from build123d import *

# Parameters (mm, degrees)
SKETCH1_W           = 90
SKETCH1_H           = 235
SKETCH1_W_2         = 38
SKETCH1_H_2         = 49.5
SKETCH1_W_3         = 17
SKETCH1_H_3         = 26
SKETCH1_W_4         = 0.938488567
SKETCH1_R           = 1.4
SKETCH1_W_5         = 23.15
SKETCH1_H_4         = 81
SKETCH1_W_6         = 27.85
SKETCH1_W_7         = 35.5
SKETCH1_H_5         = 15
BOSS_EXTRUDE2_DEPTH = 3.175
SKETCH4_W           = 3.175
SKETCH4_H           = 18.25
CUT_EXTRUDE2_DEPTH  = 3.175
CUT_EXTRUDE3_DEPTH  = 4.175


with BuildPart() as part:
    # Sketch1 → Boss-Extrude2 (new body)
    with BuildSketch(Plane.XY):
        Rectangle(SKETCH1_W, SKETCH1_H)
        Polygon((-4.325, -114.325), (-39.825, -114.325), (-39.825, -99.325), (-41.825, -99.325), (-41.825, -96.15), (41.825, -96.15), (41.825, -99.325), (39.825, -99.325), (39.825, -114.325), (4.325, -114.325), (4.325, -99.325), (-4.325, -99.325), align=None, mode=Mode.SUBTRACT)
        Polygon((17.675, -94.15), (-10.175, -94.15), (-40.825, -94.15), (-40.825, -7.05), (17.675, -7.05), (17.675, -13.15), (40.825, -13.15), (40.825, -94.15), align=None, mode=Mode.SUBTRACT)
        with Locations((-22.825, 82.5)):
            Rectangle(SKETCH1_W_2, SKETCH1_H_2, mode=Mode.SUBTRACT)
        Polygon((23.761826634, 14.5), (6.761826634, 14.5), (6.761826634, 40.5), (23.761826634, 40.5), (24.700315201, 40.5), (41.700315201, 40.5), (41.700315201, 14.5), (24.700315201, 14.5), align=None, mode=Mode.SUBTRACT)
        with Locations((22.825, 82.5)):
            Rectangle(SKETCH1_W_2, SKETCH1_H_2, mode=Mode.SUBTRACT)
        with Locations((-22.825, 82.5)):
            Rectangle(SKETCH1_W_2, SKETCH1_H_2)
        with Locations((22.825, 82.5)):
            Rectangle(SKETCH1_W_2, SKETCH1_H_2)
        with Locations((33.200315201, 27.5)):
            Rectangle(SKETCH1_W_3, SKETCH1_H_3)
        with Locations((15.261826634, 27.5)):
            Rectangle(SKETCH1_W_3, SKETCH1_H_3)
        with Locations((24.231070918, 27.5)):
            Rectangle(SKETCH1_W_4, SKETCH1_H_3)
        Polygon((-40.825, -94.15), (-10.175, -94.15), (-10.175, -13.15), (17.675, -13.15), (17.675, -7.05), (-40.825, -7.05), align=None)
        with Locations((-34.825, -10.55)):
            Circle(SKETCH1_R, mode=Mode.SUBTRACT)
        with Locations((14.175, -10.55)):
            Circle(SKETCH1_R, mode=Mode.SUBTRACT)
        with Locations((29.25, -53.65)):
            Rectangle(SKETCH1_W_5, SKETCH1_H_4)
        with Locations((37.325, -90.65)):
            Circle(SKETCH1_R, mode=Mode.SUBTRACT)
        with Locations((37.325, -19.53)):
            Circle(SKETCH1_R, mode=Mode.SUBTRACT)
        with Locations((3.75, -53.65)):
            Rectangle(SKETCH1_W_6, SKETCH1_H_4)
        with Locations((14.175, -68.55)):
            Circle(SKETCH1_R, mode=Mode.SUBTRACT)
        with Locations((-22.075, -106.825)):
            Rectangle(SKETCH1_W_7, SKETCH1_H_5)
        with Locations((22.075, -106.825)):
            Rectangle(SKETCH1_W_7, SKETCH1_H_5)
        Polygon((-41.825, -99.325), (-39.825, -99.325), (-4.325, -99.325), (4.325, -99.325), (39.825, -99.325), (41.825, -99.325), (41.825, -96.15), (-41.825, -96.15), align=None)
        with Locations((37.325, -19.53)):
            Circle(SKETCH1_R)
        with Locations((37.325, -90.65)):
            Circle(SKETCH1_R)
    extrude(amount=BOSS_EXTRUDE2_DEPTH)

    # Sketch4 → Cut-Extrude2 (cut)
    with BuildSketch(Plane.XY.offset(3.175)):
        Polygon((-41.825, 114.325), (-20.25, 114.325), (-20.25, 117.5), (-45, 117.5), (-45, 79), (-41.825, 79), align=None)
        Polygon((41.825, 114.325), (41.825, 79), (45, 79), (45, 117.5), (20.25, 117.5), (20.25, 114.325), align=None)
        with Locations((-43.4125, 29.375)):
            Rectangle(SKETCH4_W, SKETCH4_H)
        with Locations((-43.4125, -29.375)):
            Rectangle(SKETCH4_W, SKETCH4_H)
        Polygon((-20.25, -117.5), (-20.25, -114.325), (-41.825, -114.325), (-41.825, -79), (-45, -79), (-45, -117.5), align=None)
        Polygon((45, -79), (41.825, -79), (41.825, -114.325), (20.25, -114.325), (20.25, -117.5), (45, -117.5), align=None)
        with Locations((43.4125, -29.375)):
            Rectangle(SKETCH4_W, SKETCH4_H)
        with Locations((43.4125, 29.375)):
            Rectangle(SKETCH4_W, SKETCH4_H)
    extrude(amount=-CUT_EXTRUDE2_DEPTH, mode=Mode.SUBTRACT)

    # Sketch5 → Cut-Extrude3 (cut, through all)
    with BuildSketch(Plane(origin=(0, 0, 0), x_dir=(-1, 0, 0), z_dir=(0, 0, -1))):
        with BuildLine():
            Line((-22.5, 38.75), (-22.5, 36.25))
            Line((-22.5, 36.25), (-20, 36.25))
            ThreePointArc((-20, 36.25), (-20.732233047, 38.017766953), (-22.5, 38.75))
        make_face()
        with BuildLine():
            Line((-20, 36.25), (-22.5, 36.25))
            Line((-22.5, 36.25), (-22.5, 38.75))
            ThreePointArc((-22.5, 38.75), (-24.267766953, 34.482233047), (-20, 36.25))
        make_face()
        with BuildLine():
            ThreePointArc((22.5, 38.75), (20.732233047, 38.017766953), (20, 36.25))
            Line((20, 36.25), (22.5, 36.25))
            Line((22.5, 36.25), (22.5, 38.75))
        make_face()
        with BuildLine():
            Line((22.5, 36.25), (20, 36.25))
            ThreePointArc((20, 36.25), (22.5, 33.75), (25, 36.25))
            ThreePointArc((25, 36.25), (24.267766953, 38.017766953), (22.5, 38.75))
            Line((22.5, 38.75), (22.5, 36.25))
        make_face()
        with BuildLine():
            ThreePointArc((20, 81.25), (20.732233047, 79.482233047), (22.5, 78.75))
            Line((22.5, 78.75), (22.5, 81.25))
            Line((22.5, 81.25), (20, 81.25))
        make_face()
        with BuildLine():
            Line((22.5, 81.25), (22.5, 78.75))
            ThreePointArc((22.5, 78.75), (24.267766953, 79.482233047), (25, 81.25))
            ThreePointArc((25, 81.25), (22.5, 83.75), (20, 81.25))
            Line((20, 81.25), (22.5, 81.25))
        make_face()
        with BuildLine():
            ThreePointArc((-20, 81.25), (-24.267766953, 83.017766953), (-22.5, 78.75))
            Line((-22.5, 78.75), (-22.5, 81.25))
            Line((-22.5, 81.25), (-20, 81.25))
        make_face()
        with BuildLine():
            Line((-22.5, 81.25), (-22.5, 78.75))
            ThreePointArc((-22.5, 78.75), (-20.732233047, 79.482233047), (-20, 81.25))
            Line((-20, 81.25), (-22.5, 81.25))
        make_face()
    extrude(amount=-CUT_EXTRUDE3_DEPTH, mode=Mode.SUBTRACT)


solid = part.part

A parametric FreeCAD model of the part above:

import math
import FreeCAD as App
import Part
import Sketcher

V = App.Vector
Q = App.Units.Quantity

doc = App.newDocument("Part")
body = doc.addObject("PartDesign::Body", "Body")

# Sketch on XY plane
sketch1 = body.newObject("Sketcher::SketchObject", "Sketch")
sketch1.AttachmentSupport = (doc.getObject("XY_Plane"), [""])
sketch1.MapMode = "FlatFace"
sketch1.addGeometry([
    Part.LineSegment(V(-45, 117.5, 0), V(-45, -117.5, 0)),  # 0
    Part.LineSegment(V(-45, -117.5, 0), V(45, -117.5, 0)),  # 1
    Part.LineSegment(V(45, -117.5, 0), V(45, 117.5, 0)),  # 2
    Part.LineSegment(V(45, 117.5, 0), V(-45, 117.5, 0)),  # 3
    Part.Circle(V(14.2, -68.5, 0), V(0, 0, 1), 1.4),  # 4
    Part.Circle(V(-34.8, -10.6, 0), V(0, 0, 1), 1.4),  # 5
    Part.Circle(V(14.2, -10.6, 0), V(0, 0, 1), 1.4),  # 6
], False)
sketch1.addConstraint([
    Sketcher.Constraint("Coincident", 0, 2, 1, 1),
    Sketcher.Constraint("Coincident", 1, 2, 2, 1),
    Sketcher.Constraint("Coincident", 2, 2, 3, 1),
    Sketcher.Constraint("Coincident", 3, 2, 0, 1),
    Sketcher.Constraint("Vertical", 0),
    Sketcher.Constraint("Horizontal", 1),
    Sketcher.Constraint("Vertical", 2),
    Sketcher.Constraint("Horizontal", 3),
    Sketcher.Constraint("Equal", 4, 5),
    Sketcher.Constraint("Equal", 5, 6),
    Sketcher.Constraint("Symmetric", 0, 2, 2, 2, -1, 1),
    Sketcher.Constraint("Horizontal", 5, 3, 6, 3),
    Sketcher.Constraint("Vertical", 4, 3, 6, 3),
    Sketcher.Constraint("Diameter", 4, Q("2.8 mm")),
    Sketcher.Constraint("DistanceX", 1, 1, 1, 2, Q("90 mm")),
    Sketcher.Constraint("DistanceY", 0, 2, 0, 1, Q("235 mm")),
    Sketcher.Constraint("DistanceX", 5, 3, 4, 3, Q("49 mm")),
    Sketcher.Constraint("DistanceY", 4, 3, 5, 3, Q("58 mm")),
    Sketcher.Constraint("DistanceY", 4, 3, -1, 1, Q("68.55 mm")),
    Sketcher.Constraint("DistanceX", -1, 1, 4, 3, Q("14.175 mm")),
])
pad1 = body.newObject("PartDesign::Pad", "Pad")
pad1.Profile = sketch1
pad1.Length = 3.175

# Sketch on XY plane
sketch2 = body.newObject("Sketcher::SketchObject", "Sketch001")
sketch2.AttachmentSupport = (doc.getObject("XY_Plane"), [""])
sketch2.MapMode = "FlatFace"
sketch2.AttachmentOffset = App.Placement(V(0, 0, 3.175), App.Rotation())
sketch2.addGeometry([
    Part.LineSegment(V(-41.8, 114.3, 0), V(-20.2, 114.3, 0)),  # 0
    Part.LineSegment(V(-20.2, 114.3, 0), V(-20.2, 117.5, 0)),  # 1
    Part.LineSegment(V(-20.2, 117.5, 0), V(-45, 117.5, 0)),  # 2
    Part.LineSegment(V(-45, 117.5, 0), V(-45, 79, 0)),  # 3
    Part.LineSegment(V(-45, 79, 0), V(-41.8, 79, 0)),  # 4
    Part.LineSegment(V(-41.8, 79, 0), V(-41.8, 114.3, 0)),  # 5
    Part.LineSegment(V(41.8, 114.3, 0), V(41.8, 79, 0)),  # 6
    Part.LineSegment(V(41.8, 79, 0), V(45, 79, 0)),  # 7
    Part.LineSegment(V(45, 79, 0), V(45, 117.5, 0)),  # 8
    Part.LineSegment(V(45, 117.5, 0), V(20.2, 117.5, 0)),  # 9
    Part.LineSegment(V(20.2, 117.5, 0), V(20.2, 114.3, 0)),  # 10
    Part.LineSegment(V(20.2, 114.3, 0), V(41.8, 114.3, 0)),  # 11
    Part.LineSegment(V(-45, 38.5, 0), V(-45, 20.2, 0)),  # 12
    Part.LineSegment(V(-45, 20.2, 0), V(-41.8, 20.2, 0)),  # 13
    Part.LineSegment(V(-41.8, 20.2, 0), V(-41.8, 38.5, 0)),  # 14
    Part.LineSegment(V(-41.8, 38.5, 0), V(-45, 38.5, 0)),  # 15
    Part.LineSegment(V(-45, -20.2, 0), V(-45, -38.5, 0)),  # 16
    Part.LineSegment(V(-45, -38.5, 0), V(-41.8, -38.5, 0)),  # 17
    Part.LineSegment(V(-41.8, -38.5, 0), V(-41.8, -20.2, 0)),  # 18
    Part.LineSegment(V(-41.8, -20.2, 0), V(-45, -20.2, 0)),  # 19
    Part.LineSegment(V(-20.2, -117.5, 0), V(-20.2, -114.3, 0)),  # 20
    Part.LineSegment(V(-20.2, -114.3, 0), V(-41.8, -114.3, 0)),  # 21
    Part.LineSegment(V(-41.8, -114.3, 0), V(-41.8, -79, 0)),  # 22
    Part.LineSegment(V(-41.8, -79, 0), V(-45, -79, 0)),  # 23
    Part.LineSegment(V(-45, -79, 0), V(-45, -117.5, 0)),  # 24
    Part.LineSegment(V(-45, -117.5, 0), V(-20.2, -117.5, 0)),  # 25
    Part.LineSegment(V(45, -79, 0), V(41.8, -79, 0)),  # 26
    Part.LineSegment(V(41.8, -79, 0), V(41.8, -114.3, 0)),  # 27
    Part.LineSegment(V(41.8, -114.3, 0), V(20.2, -114.3, 0)),  # 28
    Part.LineSegment(V(20.2, -114.3, 0), V(20.2, -117.5, 0)),  # 29
    Part.LineSegment(V(20.2, -117.5, 0), V(45, -117.5, 0)),  # 30
    Part.LineSegment(V(45, -117.5, 0), V(45, -79, 0)),  # 31
    Part.LineSegment(V(41.8, -20.2, 0), V(41.8, -38.5, 0)),  # 32
    Part.LineSegment(V(41.8, -38.5, 0), V(45, -38.5, 0)),  # 33
    Part.LineSegment(V(45, -38.5, 0), V(45, -20.2, 0)),  # 34
    Part.LineSegment(V(45, -20.2, 0), V(41.8, -20.2, 0)),  # 35
    Part.LineSegment(V(41.8, 38.5, 0), V(41.8, 20.2, 0)),  # 36
    Part.LineSegment(V(41.8, 20.2, 0), V(45, 20.2, 0)),  # 37
    Part.LineSegment(V(45, 20.2, 0), V(45, 38.5, 0)),  # 38
    Part.LineSegment(V(45, 38.5, 0), V(41.8, 38.5, 0)),  # 39
], False)
sketch2.addConstraint([
    Sketcher.Constraint("Coincident", 0, 2, 1, 1),
    Sketcher.Constraint("Coincident", 1, 2, 2, 1),
    Sketcher.Constraint("Coincident", 2, 2, 3, 1),
    Sketcher.Constraint("Coincident", 3, 2, 4, 1),
    Sketcher.Constraint("Coincident", 4, 2, 5, 1),
    Sketcher.Constraint("Coincident", 5, 2, 0, 1),
    Sketcher.Constraint("Coincident", 6, 2, 7, 1),
    Sketcher.Constraint("Coincident", 7, 2, 8, 1),
    Sketcher.Constraint("Coincident", 8, 2, 9, 1),
    Sketcher.Constraint("Coincident", 9, 2, 10, 1),
    Sketcher.Constraint("Coincident", 10, 2, 11, 1),
    Sketcher.Constraint("Coincident", 11, 2, 6, 1),
    Sketcher.Constraint("Coincident", 12, 2, 13, 1),
    Sketcher.Constraint("Coincident", 13, 2, 14, 1),
    Sketcher.Constraint("Coincident", 14, 2, 15, 1),
    Sketcher.Constraint("Coincident", 15, 2, 12, 1),
    Sketcher.Constraint("Coincident", 16, 2, 17, 1),
    Sketcher.Constraint("Coincident", 17, 2, 18, 1),
    Sketcher.Constraint("Coincident", 18, 2, 19, 1),
    Sketcher.Constraint("Coincident", 19, 2, 16, 1),
    Sketcher.Constraint("Coincident", 20, 2, 21, 1),
    Sketcher.Constraint("Coincident", 21, 2, 22, 1),
    Sketcher.Constraint("Coincident", 22, 2, 23, 1),
    Sketcher.Constraint("Coincident", 23, 2, 24, 1),
    Sketcher.Constraint("Coincident", 24, 2, 25, 1),
    Sketcher.Constraint("Coincident", 25, 2, 20, 1),
    Sketcher.Constraint("Coincident", 26, 2, 27, 1),
    Sketcher.Constraint("Coincident", 27, 2, 28, 1),
    Sketcher.Constraint("Coincident", 28, 2, 29, 1),
    Sketcher.Constraint("Coincident", 29, 2, 30, 1),
    Sketcher.Constraint("Coincident", 30, 2, 31, 1),
    Sketcher.Constraint("Coincident", 31, 2, 26, 1),
    Sketcher.Constraint("Coincident", 32, 2, 33, 1),
    Sketcher.Constraint("Coincident", 33, 2, 34, 1),
    Sketcher.Constraint("Coincident", 34, 2, 35, 1),
    Sketcher.Constraint("Coincident", 35, 2, 32, 1),
    Sketcher.Constraint("Coincident", 36, 2, 37, 1),
    Sketcher.Constraint("Coincident", 37, 2, 38, 1),
    Sketcher.Constraint("Coincident", 38, 2, 39, 1),
    Sketcher.Constraint("Coincident", 39, 2, 36, 1),
    Sketcher.Constraint("Horizontal", 0),
    Sketcher.Constraint("Vertical", 1),
    Sketcher.Constraint("Horizontal", 2),
    Sketcher.Constraint("Vertical", 3),
    Sketcher.Constraint("Horizontal", 4),
    Sketcher.Constraint("Vertical", 5),
    Sketcher.Constraint("Vertical", 6),
    Sketcher.Constraint("Horizontal", 7),
    Sketcher.Constraint("Vertical", 8),
    Sketcher.Constraint("Horizontal", 9),
    Sketcher.Constraint("Vertical", 10),
    Sketcher.Constraint("Horizontal", 11),
    Sketcher.Constraint("Vertical", 12),
    Sketcher.Constraint("Horizontal", 13),
    Sketcher.Constraint("Vertical", 14),
    Sketcher.Constraint("Horizontal", 15),
    Sketcher.Constraint("Vertical", 16),
    Sketcher.Constraint("Horizontal", 17),
    Sketcher.Constraint("Vertical", 18),
    Sketcher.Constraint("Horizontal", 19),
    Sketcher.Constraint("Vertical", 20),
    Sketcher.Constraint("Horizontal", 21),
    Sketcher.Constraint("Vertical", 22),
    Sketcher.Constraint("Horizontal", 23),
    Sketcher.Constraint("Vertical", 24),
    Sketcher.Constraint("Horizontal", 25),
    Sketcher.Constraint("Horizontal", 26),
    Sketcher.Constraint("Vertical", 27),
    Sketcher.Constraint("Horizontal", 28),
    Sketcher.Constraint("Vertical", 29),
    Sketcher.Constraint("Horizontal", 30),
    Sketcher.Constraint("Vertical", 31),
    Sketcher.Constraint("Vertical", 32),
    Sketcher.Constraint("Horizontal", 33),
    Sketcher.Constraint("Vertical", 34),
    Sketcher.Constraint("Horizontal", 35),
    Sketcher.Constraint("Vertical", 36),
    Sketcher.Constraint("Horizontal", 37),
    Sketcher.Constraint("Vertical", 38),
    Sketcher.Constraint("Horizontal", 39),
    Sketcher.Constraint("Symmetric", 10, 2, 20, 2, -1, 1),
    Sketcher.Constraint("Symmetric", 6, 2, 22, 2, -1, 1),
    Sketcher.Constraint("Symmetric", 8, 2, 24, 2, -1, 1),
    Sketcher.Constraint("Symmetric", 4, 2, 26, 2, -1, 1),
    Sketcher.Constraint("Symmetric", 0, 2, 28, 2, -1, 1),
    Sketcher.Constraint("Symmetric", 2, 2, 30, 2, -1, 1),
    Sketcher.Constraint("Symmetric", 14, 2, 32, 2, -1, 1),
    Sketcher.Constraint("Symmetric", 12, 2, 34, 2, -1, 1),
    Sketcher.Constraint("Symmetric", 18, 2, 36, 2, -1, 1),
    Sketcher.Constraint("Symmetric", 16, 2, 38, 2, -1, 1),
    Sketcher.Constraint("Symmetric", 4, 2, 6, 2, -2),
    Sketcher.Constraint("Symmetric", 2, 2, 8, 2, -2),
    Sketcher.Constraint("Symmetric", 0, 2, 10, 2, -2),
    Sketcher.Constraint("Symmetric", 17, 2, 32, 2, -2),
    Sketcher.Constraint("Symmetric", 19, 2, 34, 2, -2),
    Sketcher.Constraint("Vertical", 3, 2, 12, 2),
    Sketcher.Constraint("Vertical", 5, 2, 13, 2),
    Sketcher.Constraint("Equal", 39, 1),
    Sketcher.Constraint("DistanceY", 3, 2, 3, 1, Q("38.5 mm")),
    Sketcher.Constraint("DistanceX", 2, 2, -1, 1, Q("45 mm")),
    Sketcher.Constraint("DistanceY", -1, 1, 3, 2, Q("79 mm")),
    Sketcher.Constraint("DistanceY", 16, 2, 15, 2, Q("77 mm")),
    Sketcher.Constraint("DistanceX", 2, 2, 2, 1, Q("24.75 mm")),
    Sketcher.Constraint("DistanceY", 12, 2, 12, 1, Q("18.25 mm")),
    Sketcher.Constraint("DistanceX", 0, 1, 0, 2, Q("21.575 mm")),
])
pocket1 = body.newObject("PartDesign::Pocket", "Pocket")
pocket1.Profile = sketch2
pocket1.Length = 3.175

# Sketch on XY plane
sketch3 = body.newObject("Sketcher::SketchObject", "Sketch002")
sketch3.AttachmentSupport = (doc.getObject("XY_Plane"), [""])
sketch3.MapMode = "FlatFace"
sketch3.addGeometry([
    Part.ArcOfCircle(Part.Circle(V(22.5, 36.2, 0), V(0, 0, 1), 2.5), math.radians(90), math.radians(180)),  # 0
    Part.ArcOfCircle(Part.Circle(V(22.5, 36.2, 0), V(0, 0, 1), 2.5), math.radians(180), math.radians(450)),  # 1
    Part.ArcOfCircle(Part.Circle(V(-22.5, 36.2, 0), V(0, 0, 1), 2.5), math.radians(0), math.radians(90)),  # 2
    Part.ArcOfCircle(Part.Circle(V(-22.5, 36.2, 0), V(0, 0, 1), 2.5), math.radians(180), math.radians(360)),  # 3
    Part.ArcOfCircle(Part.Circle(V(-22.5, 36.2, 0), V(0, 0, 1), 2.5), math.radians(90), math.radians(180)),  # 4
    Part.ArcOfCircle(Part.Circle(V(-22.5, 81.2, 0), V(0, 0, 1), 2.5), math.radians(-90), math.radians(0)),  # 5
    Part.ArcOfCircle(Part.Circle(V(-22.5, 81.2, 0), V(0, 0, 1), 2.5), math.radians(180), math.radians(270)),  # 6
    Part.ArcOfCircle(Part.Circle(V(-22.5, 81.2, 0), V(0, 0, 1), 2.5), math.radians(0), math.radians(180)),  # 7
    Part.ArcOfCircle(Part.Circle(V(22.5, 81.2, 0), V(0, 0, 1), 2.5), math.radians(-90), math.radians(180)),  # 8
    Part.ArcOfCircle(Part.Circle(V(22.5, 81.2, 0), V(0, 0, 1), 2.5), math.radians(180), math.radians(270)),  # 9
], False)
sketch3.addConstraint([
    Sketcher.Constraint("Tangent", 0, 1, 1, 2),
    Sketcher.Constraint("Coincident", 1, 1, 0, 2),
    Sketcher.Constraint("Tangent", 2, 1, 3, 2),
    Sketcher.Constraint("Tangent", 3, 1, 4, 2),
    Sketcher.Constraint("Tangent", 4, 1, 2, 2),
    Sketcher.Constraint("Tangent", 5, 1, 6, 2),
    Sketcher.Constraint("Tangent", 6, 1, 7, 2),
    Sketcher.Constraint("Tangent", 7, 1, 5, 2),
    Sketcher.Constraint("Tangent", 8, 1, 9, 2),
    Sketcher.Constraint("Coincident", 9, 1, 8, 2),
    Sketcher.Constraint("Equal", 1, 2),
    Sketcher.Constraint("Equal", 4, 5),
    Sketcher.Constraint("Equal", 7, 8),
    Sketcher.Constraint("Symmetric", 0, 3, 2, 3, -2),
    Sketcher.Constraint("Symmetric", 5, 3, 8, 3, -2),
    Sketcher.Constraint("Horizontal", 4, 3, 1, 1),
    Sketcher.Constraint("Horizontal", 1, 1, 2, 1),
    Sketcher.Constraint("Horizontal", 2, 1, 3, 1),
    Sketcher.Constraint("Horizontal", 9, 3, 6, 1),
    Sketcher.Constraint("Horizontal", 6, 1, 7, 1),
    Sketcher.Constraint("Horizontal", 7, 1, 9, 1),
    Sketcher.Constraint("Vertical", 4, 3, 5, 3),
    Sketcher.Constraint("Vertical", 9, 3, 0, 1),
    Sketcher.Constraint("Vertical", 7, 3, 4, 1),
    Sketcher.Constraint("Vertical", 4, 1, 5, 1),
    Sketcher.Constraint("Vertical", 0, 1, 8, 1),
    Sketcher.Constraint("Radius", 0, Q("2.5 mm")),
    Sketcher.Constraint("DistanceX", -1, 1, 1, 1, Q("20 mm")),
    Sketcher.Constraint("DistanceY", 2, 3, 5, 3, Q("45 mm")),
    Sketcher.Constraint("DistanceY", -1, 1, 0, 3, Q("36.25 mm")),
])
pocket2 = body.newObject("PartDesign::Pocket", "Pocket001")
pocket2.Profile = sketch3
pocket2.Type = "ThroughAll"
pocket2.Reversed = True

doc.recompute()
